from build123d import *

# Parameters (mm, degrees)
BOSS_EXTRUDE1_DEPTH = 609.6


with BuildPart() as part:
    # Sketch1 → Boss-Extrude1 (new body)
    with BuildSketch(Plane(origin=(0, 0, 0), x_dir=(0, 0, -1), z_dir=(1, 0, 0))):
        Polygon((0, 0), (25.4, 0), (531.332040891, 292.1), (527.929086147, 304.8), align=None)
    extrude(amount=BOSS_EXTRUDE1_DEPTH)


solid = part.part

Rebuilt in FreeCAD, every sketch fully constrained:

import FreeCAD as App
import Part
import Sketcher

V = App.Vector
Q = App.Units.Quantity


def add_polygon(sketch, points):
    """Adds a closed chain of lines whose ends are joined by coincident constraints."""
    first, n = sketch.GeometryCount, len(points)
    for a, b in zip(points, points[1:] + points[:1]):
        sketch.addGeometry(Part.LineSegment(App.Vector(*a, 0), App.Vector(*b, 0)), False)
    for i in range(n):
        sketch.addConstraint(Sketcher.Constraint("Coincident", first + i, 2, first + (i + 1) % n, 1))

doc = App.newDocument("Part")
body = doc.addObject("PartDesign::Body", "Body")

# Sketch on YZ plane
sketch1 = body.newObject("Sketcher::SketchObject", "Sketch")
sketch1.AttachmentSupport = (doc.getObject("YZ_Plane"), [""])
sketch1.MapMode = "FlatFace"
add_polygon(sketch1, [(0, 0), (0, -25.4), (292.1, -531.332041), (304.8, -527.929086)])  # lines 0-3
sketch1.addConstraint(Sketcher.Constraint("Vertical", 0))
sketch1.addConstraint(Sketcher.Constraint("Coincident", 3, 2, -1, 1))
sketch1.addConstraint(Sketcher.Constraint("Parallel", 1, 3))
sketch1.addConstraint(Sketcher.Constraint("DistanceY", 0, 2, 0, 1, Q("1 in")))
sketch1.addConstraint(Sketcher.Constraint("Distance", 1, Q("23 in")))
sketch1.addConstraint(Sketcher.Constraint("Distance", 3, Q("24 in")))
sketch1.addConstraint(Sketcher.Constraint("DistanceX", -1, 1, 2, 2, Q("12 in")))
pad1 = body.newObject("PartDesign::Pad", "Pad")
pad1.Profile = sketch1
pad1.Length = Q("24 in")

doc.recompute()
